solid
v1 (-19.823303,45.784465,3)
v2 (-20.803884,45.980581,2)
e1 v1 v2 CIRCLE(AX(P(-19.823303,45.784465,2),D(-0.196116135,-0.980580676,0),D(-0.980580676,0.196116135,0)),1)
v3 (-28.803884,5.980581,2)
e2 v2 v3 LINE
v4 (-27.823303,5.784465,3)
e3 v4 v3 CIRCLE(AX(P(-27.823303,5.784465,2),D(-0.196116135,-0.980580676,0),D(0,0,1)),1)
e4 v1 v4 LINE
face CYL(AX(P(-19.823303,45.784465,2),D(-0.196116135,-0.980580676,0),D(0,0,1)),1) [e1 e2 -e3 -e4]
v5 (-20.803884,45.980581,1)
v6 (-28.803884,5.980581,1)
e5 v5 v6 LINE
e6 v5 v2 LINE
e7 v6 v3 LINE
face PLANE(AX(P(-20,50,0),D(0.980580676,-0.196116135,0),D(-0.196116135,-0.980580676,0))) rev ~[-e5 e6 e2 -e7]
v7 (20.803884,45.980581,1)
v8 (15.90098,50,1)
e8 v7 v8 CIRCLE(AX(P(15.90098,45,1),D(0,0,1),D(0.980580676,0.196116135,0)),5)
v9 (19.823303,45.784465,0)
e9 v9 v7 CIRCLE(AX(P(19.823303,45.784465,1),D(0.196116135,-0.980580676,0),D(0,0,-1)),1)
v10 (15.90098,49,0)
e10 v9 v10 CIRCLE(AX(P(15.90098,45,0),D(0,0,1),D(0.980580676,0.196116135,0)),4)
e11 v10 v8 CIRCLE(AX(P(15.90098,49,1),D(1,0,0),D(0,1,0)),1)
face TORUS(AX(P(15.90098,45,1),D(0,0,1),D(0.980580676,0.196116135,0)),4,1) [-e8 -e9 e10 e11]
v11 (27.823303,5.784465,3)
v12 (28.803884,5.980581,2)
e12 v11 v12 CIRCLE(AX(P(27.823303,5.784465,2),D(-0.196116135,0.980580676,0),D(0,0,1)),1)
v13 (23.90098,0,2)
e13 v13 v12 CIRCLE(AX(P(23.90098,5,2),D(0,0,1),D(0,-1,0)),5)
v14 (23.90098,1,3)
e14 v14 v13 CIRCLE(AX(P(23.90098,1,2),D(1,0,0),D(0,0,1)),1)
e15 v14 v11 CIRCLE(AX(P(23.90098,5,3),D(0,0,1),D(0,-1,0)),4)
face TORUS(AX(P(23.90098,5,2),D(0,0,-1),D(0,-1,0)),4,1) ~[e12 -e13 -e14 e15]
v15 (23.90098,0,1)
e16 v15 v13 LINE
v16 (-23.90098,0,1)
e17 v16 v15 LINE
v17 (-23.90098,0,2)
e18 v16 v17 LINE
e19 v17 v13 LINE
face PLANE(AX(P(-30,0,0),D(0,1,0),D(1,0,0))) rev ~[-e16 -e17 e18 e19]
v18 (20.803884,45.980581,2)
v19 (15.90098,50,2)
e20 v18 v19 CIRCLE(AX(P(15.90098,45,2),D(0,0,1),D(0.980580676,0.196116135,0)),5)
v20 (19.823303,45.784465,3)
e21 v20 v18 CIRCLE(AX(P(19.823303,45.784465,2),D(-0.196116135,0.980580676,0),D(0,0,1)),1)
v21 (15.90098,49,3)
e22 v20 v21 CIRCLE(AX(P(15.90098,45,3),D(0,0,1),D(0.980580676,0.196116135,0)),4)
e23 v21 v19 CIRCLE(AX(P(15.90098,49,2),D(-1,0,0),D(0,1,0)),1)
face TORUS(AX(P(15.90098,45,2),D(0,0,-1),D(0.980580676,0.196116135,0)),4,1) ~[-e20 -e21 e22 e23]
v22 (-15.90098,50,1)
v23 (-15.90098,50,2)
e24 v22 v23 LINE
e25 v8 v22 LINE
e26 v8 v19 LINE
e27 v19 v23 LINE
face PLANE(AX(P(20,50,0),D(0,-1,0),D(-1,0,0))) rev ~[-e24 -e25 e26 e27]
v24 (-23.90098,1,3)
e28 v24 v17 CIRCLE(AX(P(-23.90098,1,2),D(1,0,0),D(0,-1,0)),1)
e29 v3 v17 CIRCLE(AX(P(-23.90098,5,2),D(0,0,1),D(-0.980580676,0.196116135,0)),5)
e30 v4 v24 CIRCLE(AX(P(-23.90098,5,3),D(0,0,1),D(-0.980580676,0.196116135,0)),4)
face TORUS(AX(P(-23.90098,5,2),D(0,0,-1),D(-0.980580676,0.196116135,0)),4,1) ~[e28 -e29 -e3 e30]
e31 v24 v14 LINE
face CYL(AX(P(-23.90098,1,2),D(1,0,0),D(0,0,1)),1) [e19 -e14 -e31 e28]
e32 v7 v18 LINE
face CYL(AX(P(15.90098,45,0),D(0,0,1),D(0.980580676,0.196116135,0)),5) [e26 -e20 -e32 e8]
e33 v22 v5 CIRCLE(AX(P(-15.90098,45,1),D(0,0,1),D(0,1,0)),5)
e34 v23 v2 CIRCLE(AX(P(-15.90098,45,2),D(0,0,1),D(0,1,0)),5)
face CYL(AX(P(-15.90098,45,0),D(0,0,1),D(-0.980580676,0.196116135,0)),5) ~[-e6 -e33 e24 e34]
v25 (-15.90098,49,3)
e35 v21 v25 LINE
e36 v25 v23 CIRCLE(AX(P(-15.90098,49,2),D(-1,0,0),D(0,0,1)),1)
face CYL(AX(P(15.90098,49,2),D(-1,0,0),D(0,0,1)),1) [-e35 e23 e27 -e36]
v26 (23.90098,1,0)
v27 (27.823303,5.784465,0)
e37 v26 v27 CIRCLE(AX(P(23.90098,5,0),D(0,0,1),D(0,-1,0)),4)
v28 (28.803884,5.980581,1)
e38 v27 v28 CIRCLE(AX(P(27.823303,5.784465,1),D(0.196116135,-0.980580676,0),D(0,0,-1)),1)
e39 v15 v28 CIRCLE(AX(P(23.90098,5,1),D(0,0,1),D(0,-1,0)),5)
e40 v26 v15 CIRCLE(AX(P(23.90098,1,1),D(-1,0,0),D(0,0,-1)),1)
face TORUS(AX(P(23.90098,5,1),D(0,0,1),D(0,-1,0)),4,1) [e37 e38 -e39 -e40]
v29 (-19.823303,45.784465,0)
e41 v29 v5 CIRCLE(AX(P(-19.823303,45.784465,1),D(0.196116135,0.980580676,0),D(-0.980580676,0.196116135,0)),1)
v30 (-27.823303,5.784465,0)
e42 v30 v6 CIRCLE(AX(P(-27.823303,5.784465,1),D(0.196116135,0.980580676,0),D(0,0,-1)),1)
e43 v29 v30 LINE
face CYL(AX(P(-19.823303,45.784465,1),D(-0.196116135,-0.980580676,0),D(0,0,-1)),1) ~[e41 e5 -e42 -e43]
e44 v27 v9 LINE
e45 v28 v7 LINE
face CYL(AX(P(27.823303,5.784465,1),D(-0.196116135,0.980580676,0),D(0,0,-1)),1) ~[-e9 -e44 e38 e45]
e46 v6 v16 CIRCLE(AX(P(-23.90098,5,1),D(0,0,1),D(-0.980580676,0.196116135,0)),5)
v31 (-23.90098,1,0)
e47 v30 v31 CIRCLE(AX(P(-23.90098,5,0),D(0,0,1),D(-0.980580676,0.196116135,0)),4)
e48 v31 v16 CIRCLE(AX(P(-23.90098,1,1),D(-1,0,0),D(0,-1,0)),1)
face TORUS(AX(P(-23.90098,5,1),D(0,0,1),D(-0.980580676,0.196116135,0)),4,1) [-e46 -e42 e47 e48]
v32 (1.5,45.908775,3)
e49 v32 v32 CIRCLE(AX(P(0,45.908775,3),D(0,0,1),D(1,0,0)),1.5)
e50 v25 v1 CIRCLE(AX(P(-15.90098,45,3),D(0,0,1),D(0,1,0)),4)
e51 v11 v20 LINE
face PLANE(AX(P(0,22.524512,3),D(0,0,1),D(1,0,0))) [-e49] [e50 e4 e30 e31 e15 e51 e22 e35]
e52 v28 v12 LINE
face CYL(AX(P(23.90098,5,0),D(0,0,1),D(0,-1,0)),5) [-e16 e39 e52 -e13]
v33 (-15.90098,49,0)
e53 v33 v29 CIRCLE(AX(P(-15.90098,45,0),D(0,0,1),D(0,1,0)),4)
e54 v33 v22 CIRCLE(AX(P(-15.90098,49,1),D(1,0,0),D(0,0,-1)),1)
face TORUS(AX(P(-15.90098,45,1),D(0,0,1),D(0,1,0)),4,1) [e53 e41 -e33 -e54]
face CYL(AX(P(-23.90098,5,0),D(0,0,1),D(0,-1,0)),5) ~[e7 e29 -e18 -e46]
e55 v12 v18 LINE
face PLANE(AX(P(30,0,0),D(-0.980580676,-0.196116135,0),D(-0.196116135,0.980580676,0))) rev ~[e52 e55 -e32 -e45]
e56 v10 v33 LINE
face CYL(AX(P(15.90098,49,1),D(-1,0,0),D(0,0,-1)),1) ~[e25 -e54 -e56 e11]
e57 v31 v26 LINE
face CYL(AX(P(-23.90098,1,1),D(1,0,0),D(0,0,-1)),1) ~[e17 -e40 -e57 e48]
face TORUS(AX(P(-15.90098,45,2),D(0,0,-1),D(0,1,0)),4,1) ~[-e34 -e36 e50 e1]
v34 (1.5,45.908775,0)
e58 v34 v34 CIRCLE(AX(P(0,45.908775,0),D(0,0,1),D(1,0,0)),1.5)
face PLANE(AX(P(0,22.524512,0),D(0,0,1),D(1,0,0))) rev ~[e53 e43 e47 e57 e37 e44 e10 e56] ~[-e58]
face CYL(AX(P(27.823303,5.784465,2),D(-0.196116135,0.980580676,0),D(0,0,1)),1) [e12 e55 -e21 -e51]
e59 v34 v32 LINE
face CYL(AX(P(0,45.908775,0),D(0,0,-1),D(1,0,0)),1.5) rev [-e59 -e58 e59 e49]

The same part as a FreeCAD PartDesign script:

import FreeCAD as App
import Part
import Sketcher

V = App.Vector


def edges_at(feature, points):
    """Names of the edges that pass closest to the given points."""
    edges = feature.Shape.Edges
    near = lambda p: min(range(len(edges)), key=lambda i: edges[i].distToShape(Part.Vertex(*p))[0])
    return sorted({f"Edge{near(p) + 1}" for p in points})


def add_polygon(sketch, points):
    """Adds a closed chain of lines whose ends are joined by coincident constraints."""
    first, n = sketch.GeometryCount, len(points)
    for a, b in zip(points, points[1:] + points[:1]):
        sketch.addGeometry(Part.LineSegment(App.Vector(*a, 0), App.Vector(*b, 0)), False)
    for i in range(n):
        sketch.addConstraint(Sketcher.Constraint("Coincident", first + i, 2, first + (i + 1) % n, 1))

doc = App.newDocument("Part")
params = doc.addObject("Spreadsheet::Sheet", "Params")
for row, (alias, value) in enumerate([
    ("sketch1_diameter", "3 mm"),
    ("sketch1_width", "60 mm"),
    ("sketch1_width2", "40 mm"),
    ("pad1_length", "3 mm"),
    ("fillet_radius", "5 mm"),
    ("fillet2_radius", "1 mm"),
], start=1):
    params.set(f"A{row}", alias)
    params.set(f"B{row}", "=" + value)
    params.setAlias(f"B{row}", alias)

body = doc.addObject("PartDesign::Body", "Body")

# Sketch on XY plane
sketch1 = body.newObject("Sketcher::SketchObject", "Sketch")
sketch1.AttachmentSupport = (doc.getObject("XY_Plane"), [""])
sketch1.MapMode = "FlatFace"
add_polygon(sketch1, [(-30, 0), (30, 0), (20, 50), (-20, 50)])  # lines 0-3
sketch1.addGeometry(Part.Circle(V(0, 45.9, 0), V(0, 0, 1), 1.5), False)  # 4
sketch1.addConstraint([
    Sketcher.Constraint("Horizontal", 0),
    Sketcher.Constraint("Horizontal", 2),
    Sketcher.Constraint("Symmetric", 0, 2, 3, 2, -1, 1),
    Sketcher.Constraint("PointOnObject", 4, 3, -2),
    Sketcher.Constraint("Equal", 1, 3),
    Sketcher.Constraint("Diameter", 4, 3.0),
    Sketcher.Constraint("DistanceX", 0, 1, 0, 2, 60.0),
    Sketcher.Constraint("DistanceX", 2, 2, 2, 1, 40.0),
    Sketcher.Constraint("DistanceY", -1, 1, 1, 2, 50.0),
    Sketcher.Constraint("DistanceY", -1, 1, 4, 3, 45.908775),
])
sketch1.setExpression("Constraints[9]", "Params.sketch1_diameter")
sketch1.setExpression("Constraints[10]", "Params.sketch1_width")
sketch1.setExpression("Constraints[11]", "Params.sketch1_width2")
pad1 = body.newObject("PartDesign::Pad", "Pad")
pad1.Profile = sketch1
pad1.setExpression("Length", "Params.pad1_length")
doc.recompute()

fillet = body.newObject("PartDesign::Fillet", "Fillet")
fillet.Base = (pad1, edges_at(pad1, [
    (-20, 50, 1.5),
    (20, 50, 1.5),
    (30, 0, 1.5),
    (-30, 0, 1.5),
]))
fillet.setExpression("Radius", "Params.fillet_radius")
doc.recompute()

fillet2 = body.newObject("PartDesign::Fillet", "Fillet001")
fillet2.Base = (fillet, edges_at(fillet, [(24.804, 25.981, 3), (24.804, 25.981, 0)]))
fillet2.setExpression("Radius", "Params.fillet2_radius")

doc.recompute()
